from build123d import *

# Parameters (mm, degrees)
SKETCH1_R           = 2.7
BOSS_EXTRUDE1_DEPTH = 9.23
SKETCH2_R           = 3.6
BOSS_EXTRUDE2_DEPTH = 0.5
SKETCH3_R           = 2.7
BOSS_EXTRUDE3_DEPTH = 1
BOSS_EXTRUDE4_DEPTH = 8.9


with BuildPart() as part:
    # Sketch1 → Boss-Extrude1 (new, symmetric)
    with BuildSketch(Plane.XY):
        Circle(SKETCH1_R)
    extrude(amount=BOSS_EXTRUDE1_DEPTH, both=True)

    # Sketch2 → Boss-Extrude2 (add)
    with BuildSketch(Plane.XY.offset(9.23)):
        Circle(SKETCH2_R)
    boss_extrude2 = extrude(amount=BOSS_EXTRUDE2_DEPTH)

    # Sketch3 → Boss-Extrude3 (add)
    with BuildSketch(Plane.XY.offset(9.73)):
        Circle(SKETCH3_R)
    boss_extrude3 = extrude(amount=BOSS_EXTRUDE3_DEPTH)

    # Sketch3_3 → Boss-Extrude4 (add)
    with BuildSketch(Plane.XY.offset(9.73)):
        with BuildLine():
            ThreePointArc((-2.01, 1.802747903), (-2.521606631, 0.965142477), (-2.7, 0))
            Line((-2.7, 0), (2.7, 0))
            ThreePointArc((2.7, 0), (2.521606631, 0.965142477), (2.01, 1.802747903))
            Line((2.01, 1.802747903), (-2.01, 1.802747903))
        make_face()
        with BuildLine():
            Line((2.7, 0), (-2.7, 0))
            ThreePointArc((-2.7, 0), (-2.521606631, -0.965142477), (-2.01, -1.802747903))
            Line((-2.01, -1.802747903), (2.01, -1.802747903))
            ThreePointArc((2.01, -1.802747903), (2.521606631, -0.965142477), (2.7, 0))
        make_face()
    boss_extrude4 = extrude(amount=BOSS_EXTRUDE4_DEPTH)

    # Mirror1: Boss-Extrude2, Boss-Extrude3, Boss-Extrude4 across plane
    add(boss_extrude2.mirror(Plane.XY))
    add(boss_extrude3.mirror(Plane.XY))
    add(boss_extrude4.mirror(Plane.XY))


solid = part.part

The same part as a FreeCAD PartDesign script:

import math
import FreeCAD as App
import Part
import Sketcher

V = App.Vector
Q = App.Units.Quantity

doc = App.newDocument("Part")
body = doc.addObject("PartDesign::Body", "Body")

# Sketch on XY plane
sketch1 = body.newObject("Sketcher::SketchObject", "Sketch")
sketch1.AttachmentSupport = (doc.getObject("XY_Plane"), [""])
sketch1.MapMode = "FlatFace"
sketch1.addGeometry(Part.Circle(V(0, 0, 0), V(0, 0, 1), 2.7), False)
sketch1.addConstraint(Sketcher.Constraint("Coincident", 0, 3, -1, 1))
sketch1.addConstraint(Sketcher.Constraint("Diameter", 0, Q("5.4 mm")))
pad1 = body.newObject("PartDesign::Pad", "Pad")
pad1.Profile = sketch1
pad1.Length = 18.46
pad1.Midplane = True

# Sketch on XY plane
sketch2 = body.newObject("Sketcher::SketchObject", "Sketch001")
sketch2.AttachmentSupport = (doc.getObject("XY_Plane"), [""])
sketch2.MapMode = "FlatFace"
sketch2.AttachmentOffset = App.Placement(V(0, 0, 9.23), App.Rotation())
sketch2.addGeometry(Part.Circle(V(0, 0, 0), V(0, 0, 1), 3.6), False)
sketch2.addConstraint(Sketcher.Constraint("Coincident", 0, 3, -1, 1))
sketch2.addConstraint(Sketcher.Constraint("Diameter", 0, Q("7.2 mm")))
pad2 = body.newObject("PartDesign::Pad", "Pad001")
pad2.Profile = sketch2
pad2.Length = 0.5

# Sketch on XY plane
sketch3 = body.newObject("Sketcher::SketchObject", "Sketch002")
sketch3.AttachmentSupport = (doc.getObject("XY_Plane"), [""])
sketch3.MapMode = "FlatFace"
sketch3.AttachmentOffset = App.Placement(V(0, 0, 9.73), App.Rotation())
sketch3.addGeometry(Part.Circle(V(0, 0, 0), V(0, 0, 1), 2.7), False)
sketch3.addConstraint(Sketcher.Constraint("Coincident", 0, 3, -1, 1))
sketch3.addConstraint(Sketcher.Constraint("Diameter", 0, Q("5.4 mm")))
pad3 = body.newObject("PartDesign::Pad", "Pad002")
pad3.Profile = sketch3
pad3.Length = 1

# Sketch on XY plane
sketch4 = body.newObject("Sketcher::SketchObject", "Sketch003")
sketch4.AttachmentSupport = (doc.getObject("XY_Plane"), [""])
sketch4.MapMode = "FlatFace"
sketch4.AttachmentOffset = App.Placement(V(0, 0, 9.73), App.Rotation())
sketch4.addGeometry(Part.ArcOfCircle(Part.Circle(V(0, 0, 0), V(0, 0, 1), 2.7), math.radians(138), math.radians(180)), False)
sketch4.addGeometry(Part.ArcOfCircle(Part.Circle(V(0, 0, 0), V(0, 0, 1), 2.7), math.radians(180), math.radians(222)), False)
sketch4.addGeometry(Part.LineSegment(V(-2, -1.8, 0), V(2, -1.8, 0)), False)
sketch4.addGeometry(Part.ArcOfCircle(Part.Circle(V(0, 0, 0), V(0, 0, 1), 2.7), math.radians(-42), math.radians(0)), False)
sketch4.addGeometry(Part.ArcOfCircle(Part.Circle(V(0, 0, 0), V(0, 0, 1), 2.7), math.radians(0), math.radians(42)), False)
sketch4.addGeometry(Part.LineSegment(V(2, 1.8, 0), V(-2, 1.8, 0)), False)
sketch4.addConstraint(Sketcher.Constraint("Tangent", 0, 2, 1, 1))
sketch4.addConstraint(Sketcher.Constraint("Coincident", 1, 2, 2, 1))
sketch4.addConstraint(Sketcher.Constraint("Coincident", 2, 2, 3, 1))
sketch4.addConstraint(Sketcher.Constraint("Tangent", 3, 2, 4, 1))
sketch4.addConstraint(Sketcher.Constraint("Coincident", 4, 2, 5, 1))
sketch4.addConstraint(Sketcher.Constraint("Coincident", 5, 2, 0, 1))
sketch4.addConstraint(Sketcher.Constraint("Horizontal", 2))
sketch4.addConstraint(Sketcher.Constraint("Horizontal", 5))
sketch4.addConstraint(Sketcher.Constraint("Coincident", 0, 3, -1, 1))
sketch4.addConstraint(Sketcher.Constraint("Coincident", 3, 3, -1, 1))
sketch4.addConstraint(Sketcher.Constraint("Equal", 0, 1))
sketch4.addConstraint(Sketcher.Constraint("Equal", 1, 3))
sketch4.addConstraint(Sketcher.Constraint("Equal", 3, 4))
sketch4.addConstraint(Sketcher.Constraint("PointOnObject", 0, 2, -1))
sketch4.addConstraint(Sketcher.Constraint("PointOnObject", 3, 2, -1))
sketch4.addConstraint(Sketcher.Constraint("Vertical", 2, 2, 4, 2))
sketch4.addConstraint(Sketcher.Constraint("Radius", 0, Q("2.7 mm")))
sketch4.addConstraint(Sketcher.Constraint("DistanceX", 2, 1, 2, 2, Q("4.02 mm")))
pad4 = body.newObject("PartDesign::Pad", "Pad003")
pad4.Profile = sketch4
pad4.Length = 8.9
doc.recompute()

mirrored = body.newObject("PartDesign::Mirrored", "Mirrored")
mirrored.Originals = [pad2, pad3, pad4]
mirrored.MirrorPlane = (doc.getObject("XY_Plane"), [""])
body.Tip = mirrored

doc.recompute()
